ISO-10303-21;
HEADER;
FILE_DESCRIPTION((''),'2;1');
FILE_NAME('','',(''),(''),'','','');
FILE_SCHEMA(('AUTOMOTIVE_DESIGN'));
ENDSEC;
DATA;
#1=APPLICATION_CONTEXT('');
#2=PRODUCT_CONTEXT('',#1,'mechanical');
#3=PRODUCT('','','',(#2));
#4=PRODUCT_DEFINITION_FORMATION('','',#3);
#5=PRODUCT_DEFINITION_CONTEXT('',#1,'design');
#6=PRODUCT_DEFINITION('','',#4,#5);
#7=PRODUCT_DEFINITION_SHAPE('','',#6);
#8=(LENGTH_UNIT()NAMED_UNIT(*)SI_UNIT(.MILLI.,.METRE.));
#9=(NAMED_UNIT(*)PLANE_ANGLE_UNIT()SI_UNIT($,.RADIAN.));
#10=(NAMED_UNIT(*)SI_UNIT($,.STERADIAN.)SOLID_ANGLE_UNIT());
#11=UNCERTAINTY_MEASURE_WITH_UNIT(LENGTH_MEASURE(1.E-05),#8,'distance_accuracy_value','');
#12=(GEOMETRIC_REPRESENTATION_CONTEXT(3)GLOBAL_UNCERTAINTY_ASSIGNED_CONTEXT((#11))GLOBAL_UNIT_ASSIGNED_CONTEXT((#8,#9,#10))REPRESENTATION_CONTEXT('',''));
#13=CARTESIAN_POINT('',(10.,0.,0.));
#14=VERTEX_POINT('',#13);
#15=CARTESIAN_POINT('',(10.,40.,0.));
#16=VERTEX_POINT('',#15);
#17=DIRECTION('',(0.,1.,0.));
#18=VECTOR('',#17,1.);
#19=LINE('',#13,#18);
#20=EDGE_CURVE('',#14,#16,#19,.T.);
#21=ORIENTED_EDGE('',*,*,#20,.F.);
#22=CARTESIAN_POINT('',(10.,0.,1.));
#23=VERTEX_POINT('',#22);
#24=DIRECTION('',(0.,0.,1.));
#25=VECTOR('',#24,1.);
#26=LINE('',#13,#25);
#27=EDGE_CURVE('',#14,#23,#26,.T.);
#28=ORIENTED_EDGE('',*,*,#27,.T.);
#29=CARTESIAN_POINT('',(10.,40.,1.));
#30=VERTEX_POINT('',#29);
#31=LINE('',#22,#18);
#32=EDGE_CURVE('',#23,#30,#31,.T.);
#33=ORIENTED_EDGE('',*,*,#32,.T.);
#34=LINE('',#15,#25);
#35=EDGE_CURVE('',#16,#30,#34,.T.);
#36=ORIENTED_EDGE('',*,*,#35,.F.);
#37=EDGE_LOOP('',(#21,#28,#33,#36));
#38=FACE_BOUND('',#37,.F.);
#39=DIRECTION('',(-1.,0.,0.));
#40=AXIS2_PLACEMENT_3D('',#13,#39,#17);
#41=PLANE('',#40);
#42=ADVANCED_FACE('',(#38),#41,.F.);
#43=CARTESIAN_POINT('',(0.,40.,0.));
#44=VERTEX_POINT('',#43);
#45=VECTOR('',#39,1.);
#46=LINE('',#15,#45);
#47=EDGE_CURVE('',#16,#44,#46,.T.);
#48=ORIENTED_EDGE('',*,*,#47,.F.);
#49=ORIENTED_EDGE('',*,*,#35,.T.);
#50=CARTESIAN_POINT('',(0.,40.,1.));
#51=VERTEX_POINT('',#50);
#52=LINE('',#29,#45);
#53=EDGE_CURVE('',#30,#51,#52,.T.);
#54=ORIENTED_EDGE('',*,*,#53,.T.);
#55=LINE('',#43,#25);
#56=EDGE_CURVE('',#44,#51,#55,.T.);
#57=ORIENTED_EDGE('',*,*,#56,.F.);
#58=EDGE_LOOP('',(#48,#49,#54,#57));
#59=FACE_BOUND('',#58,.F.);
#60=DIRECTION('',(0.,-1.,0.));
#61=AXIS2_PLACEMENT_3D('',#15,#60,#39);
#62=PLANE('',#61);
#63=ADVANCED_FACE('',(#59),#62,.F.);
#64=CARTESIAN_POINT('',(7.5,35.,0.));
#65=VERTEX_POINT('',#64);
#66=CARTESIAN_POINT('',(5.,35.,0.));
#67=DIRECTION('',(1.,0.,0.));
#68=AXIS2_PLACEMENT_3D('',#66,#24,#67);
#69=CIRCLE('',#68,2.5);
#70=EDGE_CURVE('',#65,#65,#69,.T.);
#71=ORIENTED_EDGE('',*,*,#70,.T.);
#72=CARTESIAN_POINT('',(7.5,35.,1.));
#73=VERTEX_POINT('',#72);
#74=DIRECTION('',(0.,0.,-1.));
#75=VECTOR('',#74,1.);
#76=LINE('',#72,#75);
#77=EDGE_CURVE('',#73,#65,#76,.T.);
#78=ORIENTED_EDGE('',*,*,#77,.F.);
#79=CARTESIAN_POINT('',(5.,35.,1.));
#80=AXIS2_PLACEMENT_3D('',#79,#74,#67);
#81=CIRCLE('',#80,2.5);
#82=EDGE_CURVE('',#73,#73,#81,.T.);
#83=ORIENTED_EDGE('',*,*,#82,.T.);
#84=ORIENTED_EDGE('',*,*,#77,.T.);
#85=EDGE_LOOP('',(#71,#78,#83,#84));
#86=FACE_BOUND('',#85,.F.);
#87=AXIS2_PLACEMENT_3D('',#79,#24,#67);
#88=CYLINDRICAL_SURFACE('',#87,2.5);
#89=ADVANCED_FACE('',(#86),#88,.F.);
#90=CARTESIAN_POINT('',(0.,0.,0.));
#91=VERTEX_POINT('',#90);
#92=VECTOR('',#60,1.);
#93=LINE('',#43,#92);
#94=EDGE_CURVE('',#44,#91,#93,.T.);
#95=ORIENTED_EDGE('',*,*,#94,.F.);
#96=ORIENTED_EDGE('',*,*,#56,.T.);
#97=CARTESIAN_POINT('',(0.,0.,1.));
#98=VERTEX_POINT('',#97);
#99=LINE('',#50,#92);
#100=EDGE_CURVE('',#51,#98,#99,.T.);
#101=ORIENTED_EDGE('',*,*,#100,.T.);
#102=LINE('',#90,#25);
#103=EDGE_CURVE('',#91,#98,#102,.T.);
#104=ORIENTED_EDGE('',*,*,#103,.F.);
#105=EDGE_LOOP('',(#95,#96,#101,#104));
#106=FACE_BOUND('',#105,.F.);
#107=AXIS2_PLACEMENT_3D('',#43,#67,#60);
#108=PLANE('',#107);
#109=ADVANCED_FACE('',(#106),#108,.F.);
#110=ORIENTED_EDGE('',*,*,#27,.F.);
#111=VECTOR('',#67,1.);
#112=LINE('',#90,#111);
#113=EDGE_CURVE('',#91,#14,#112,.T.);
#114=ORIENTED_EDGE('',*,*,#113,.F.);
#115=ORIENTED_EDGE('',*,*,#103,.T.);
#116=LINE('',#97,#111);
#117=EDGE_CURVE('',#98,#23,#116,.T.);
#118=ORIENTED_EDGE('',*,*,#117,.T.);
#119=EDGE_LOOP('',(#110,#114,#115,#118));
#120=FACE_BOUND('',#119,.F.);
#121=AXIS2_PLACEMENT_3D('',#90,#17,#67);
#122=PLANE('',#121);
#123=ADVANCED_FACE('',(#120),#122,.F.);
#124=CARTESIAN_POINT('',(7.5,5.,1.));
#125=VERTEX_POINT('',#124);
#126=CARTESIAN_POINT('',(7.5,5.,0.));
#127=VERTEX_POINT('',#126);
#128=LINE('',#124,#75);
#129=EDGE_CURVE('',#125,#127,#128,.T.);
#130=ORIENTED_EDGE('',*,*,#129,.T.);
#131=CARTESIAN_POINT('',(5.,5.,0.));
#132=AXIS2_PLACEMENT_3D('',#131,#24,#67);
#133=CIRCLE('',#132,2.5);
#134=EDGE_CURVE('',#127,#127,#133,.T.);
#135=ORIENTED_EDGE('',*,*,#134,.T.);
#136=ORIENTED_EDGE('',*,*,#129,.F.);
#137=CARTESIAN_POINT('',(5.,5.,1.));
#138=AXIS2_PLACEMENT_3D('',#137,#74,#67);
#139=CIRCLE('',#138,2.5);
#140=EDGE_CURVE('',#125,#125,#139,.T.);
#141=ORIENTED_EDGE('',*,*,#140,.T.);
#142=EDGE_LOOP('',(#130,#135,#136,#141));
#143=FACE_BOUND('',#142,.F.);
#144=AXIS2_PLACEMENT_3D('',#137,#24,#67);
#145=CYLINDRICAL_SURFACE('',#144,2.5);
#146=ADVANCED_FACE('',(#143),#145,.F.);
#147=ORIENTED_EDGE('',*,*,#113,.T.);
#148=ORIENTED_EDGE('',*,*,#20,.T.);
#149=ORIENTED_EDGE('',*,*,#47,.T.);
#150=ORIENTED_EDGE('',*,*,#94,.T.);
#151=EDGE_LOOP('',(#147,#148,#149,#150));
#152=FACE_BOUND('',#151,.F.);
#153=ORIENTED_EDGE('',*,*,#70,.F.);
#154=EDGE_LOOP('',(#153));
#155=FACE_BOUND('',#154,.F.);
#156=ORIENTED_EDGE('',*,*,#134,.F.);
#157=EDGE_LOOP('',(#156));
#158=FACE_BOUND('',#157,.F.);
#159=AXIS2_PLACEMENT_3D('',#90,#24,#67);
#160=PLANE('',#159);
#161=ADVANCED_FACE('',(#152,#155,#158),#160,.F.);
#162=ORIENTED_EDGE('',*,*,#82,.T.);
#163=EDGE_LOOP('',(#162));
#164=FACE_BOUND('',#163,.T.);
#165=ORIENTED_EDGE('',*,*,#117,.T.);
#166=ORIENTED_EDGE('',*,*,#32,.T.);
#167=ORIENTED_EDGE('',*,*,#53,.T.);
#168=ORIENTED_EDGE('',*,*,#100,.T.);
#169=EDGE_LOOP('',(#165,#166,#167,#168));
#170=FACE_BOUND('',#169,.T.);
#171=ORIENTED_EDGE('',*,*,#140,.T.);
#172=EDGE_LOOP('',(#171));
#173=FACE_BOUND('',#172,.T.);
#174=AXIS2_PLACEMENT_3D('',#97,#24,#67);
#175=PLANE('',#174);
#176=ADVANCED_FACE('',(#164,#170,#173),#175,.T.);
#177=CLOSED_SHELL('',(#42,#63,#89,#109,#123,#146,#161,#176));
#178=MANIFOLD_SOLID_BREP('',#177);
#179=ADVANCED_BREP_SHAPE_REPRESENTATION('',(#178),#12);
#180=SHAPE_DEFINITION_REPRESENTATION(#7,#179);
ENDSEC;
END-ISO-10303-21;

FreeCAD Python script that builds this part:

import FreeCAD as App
import Part
import Sketcher

V = App.Vector


def add_polygon(sketch, points):
    """Adds a closed chain of lines whose ends are joined by coincident constraints."""
    first, n = sketch.GeometryCount, len(points)
    for a, b in zip(points, points[1:] + points[:1]):
        sketch.addGeometry(Part.LineSegment(App.Vector(*a, 0), App.Vector(*b, 0)), False)
    for i in range(n):
        sketch.addConstraint(Sketcher.Constraint("Coincident", first + i, 2, first + (i + 1) % n, 1))

doc = App.newDocument("Part")
params = doc.addObject("Spreadsheet::Sheet", "Params")
for row, (alias, value) in enumerate([
    ("sketch1_width", "10 mm"),
    ("sketch1_height", "40 mm"),
    ("pad1_length", "1 mm"),
    ("sketch2_diameter", "5 mm"),
    ("pocket1_length", "1 mm"),
], start=1):
    params.set(f"A{row}", alias)
    params.set(f"B{row}", "=" + value)
    params.setAlias(f"B{row}", alias)

body = doc.addObject("PartDesign::Body", "Body")

sketch1 = body.newObject("Sketcher::SketchObject", "Sketch")
sketch1.AttachmentSupport = (doc.getObject("XY_Plane"), [""])
sketch1.MapMode = "FlatFace"
add_polygon(sketch1, [(0, 40), (0, 0), (10, 0), (10, 40)])
sketch1.addConstraint([
    Sketcher.Constraint("Vertical", 0),
    Sketcher.Constraint("Horizontal", 1),
    Sketcher.Constraint("Vertical", 2),
    Sketcher.Constraint("Horizontal", 3),
    Sketcher.Constraint("Coincident", 0, 2, -1, 1),
    Sketcher.Constraint("DistanceX", 1, 1, 1, 2, 10.0),
    Sketcher.Constraint("DistanceY", 0, 2, 0, 1, 40.0),
])
sketch1.setExpression("Constraints[9]", "Params.sketch1_width")
sketch1.setExpression("Constraints[10]", "Params.sketch1_height")
pad1 = body.newObject("PartDesign::Pad", "Pad")
pad1.Profile = sketch1
pad1.setExpression("Length", "Params.pad1_length")

sketch2 = body.newObject("Sketcher::SketchObject", "Sketch001")
sketch2.AttachmentSupport = (doc.getObject("XY_Plane"), [""])
sketch2.MapMode = "FlatFace"
sketch2.AttachmentOffset = App.Placement(V(0, 0, 1), App.Rotation())
sketch2.addGeometry([
    Part.Circle(V(5, 35, 0), V(0, 0, 1), 2.5),
    Part.Circle(V(5, 5, 0), V(0, 0, 1), 2.5),
], False)
sketch2.addConstraint([
    Sketcher.Constraint("Equal", 0, 1),
    Sketcher.Constraint("Vertical", 0, 3, 1, 3),
    Sketcher.Constraint("Diameter", 0, 5.0),
    Sketcher.Constraint("DistanceX", -1, 1, 0, 3, 5.0),
    Sketcher.Constraint("DistanceY", -1, 1, 1, 3, 5.0),
    Sketcher.Constraint("DistanceY", -1, 1, 0, 3, 35.0),
])
sketch2.setExpression("Constraints[2]", "Params.sketch2_diameter")
pocket1 = body.newObject("PartDesign::Pocket", "Pocket")
pocket1.Profile = sketch2
pocket1.setExpression("Length", "Params.pocket1_length")

doc.recompute()
